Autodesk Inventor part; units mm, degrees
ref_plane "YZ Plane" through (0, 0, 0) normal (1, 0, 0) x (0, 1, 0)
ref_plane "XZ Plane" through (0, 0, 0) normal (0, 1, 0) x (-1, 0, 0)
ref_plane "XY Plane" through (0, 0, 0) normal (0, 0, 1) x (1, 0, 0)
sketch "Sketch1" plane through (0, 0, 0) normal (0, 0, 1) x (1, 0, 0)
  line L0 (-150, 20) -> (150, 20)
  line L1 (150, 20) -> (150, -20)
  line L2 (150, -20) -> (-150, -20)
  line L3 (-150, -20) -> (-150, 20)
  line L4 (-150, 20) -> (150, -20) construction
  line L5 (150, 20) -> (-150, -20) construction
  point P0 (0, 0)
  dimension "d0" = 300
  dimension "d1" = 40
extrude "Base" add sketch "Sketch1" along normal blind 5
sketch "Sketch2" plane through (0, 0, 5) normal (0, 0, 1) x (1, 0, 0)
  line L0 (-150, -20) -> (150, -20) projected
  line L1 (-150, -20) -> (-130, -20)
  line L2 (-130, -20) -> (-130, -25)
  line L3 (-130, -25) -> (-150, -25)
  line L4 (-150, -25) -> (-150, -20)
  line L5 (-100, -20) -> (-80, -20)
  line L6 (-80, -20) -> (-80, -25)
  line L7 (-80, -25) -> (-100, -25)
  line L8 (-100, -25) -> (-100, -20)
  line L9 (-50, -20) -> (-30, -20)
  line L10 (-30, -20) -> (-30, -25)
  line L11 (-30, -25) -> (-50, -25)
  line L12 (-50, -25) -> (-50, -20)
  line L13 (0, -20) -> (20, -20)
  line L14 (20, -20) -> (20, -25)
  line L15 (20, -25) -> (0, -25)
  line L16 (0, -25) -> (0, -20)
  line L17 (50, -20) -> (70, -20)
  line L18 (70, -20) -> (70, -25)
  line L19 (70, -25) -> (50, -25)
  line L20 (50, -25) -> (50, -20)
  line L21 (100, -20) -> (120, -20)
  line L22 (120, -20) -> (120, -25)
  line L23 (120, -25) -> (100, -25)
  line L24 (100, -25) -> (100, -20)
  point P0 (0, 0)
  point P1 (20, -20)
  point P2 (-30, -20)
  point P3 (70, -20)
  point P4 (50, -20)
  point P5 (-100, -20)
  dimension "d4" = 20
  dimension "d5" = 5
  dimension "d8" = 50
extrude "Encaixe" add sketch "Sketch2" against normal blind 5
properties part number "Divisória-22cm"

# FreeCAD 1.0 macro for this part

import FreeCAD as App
import Part
import Sketcher


def add_polygon(sketch, points):
    """Adds a closed chain of lines whose ends are joined by coincident constraints."""
    first, n = sketch.GeometryCount, len(points)
    for a, b in zip(points, points[1:] + points[:1]):
        sketch.addGeometry(Part.LineSegment(App.Vector(*a, 0), App.Vector(*b, 0)), False)
    for i in range(n):
        sketch.addConstraint(Sketcher.Constraint("Coincident", first + i, 2, first + (i + 1) % n, 1))

doc = App.newDocument("Part")
body = doc.addObject("PartDesign::Body", "Body")

sketch1 = body.newObject("Sketcher::SketchObject", "Sketch")
sketch1.AttachmentSupport = (doc.getObject("XY_Plane"), [""])
sketch1.MapMode = "FlatFace"
add_polygon(sketch1, [(150, 20), (-150, 20), (-150, -20), (150, -20)])
sketch1.addConstraint(Sketcher.Constraint("Horizontal", 0))
sketch1.addConstraint(Sketcher.Constraint("Vertical", 1))
sketch1.addConstraint(Sketcher.Constraint("Horizontal", 2))
sketch1.addConstraint(Sketcher.Constraint("Vertical", 3))
sketch1.addConstraint(Sketcher.Constraint("Symmetric", 0, 2, 2, 2, -1, 1))
sketch1.addConstraint(Sketcher.Constraint("DistanceX", 0, 2, 0, 1, 300.0))
sketch1.addConstraint(Sketcher.Constraint("DistanceY", 1, 2, 1, 1, 40.0))
pad1 = body.newObject("PartDesign::Pad", "Pad")
pad1.Profile = sketch1
pad1.Length = 5

sketch2 = body.newObject("Sketcher::SketchObject", "Sketch001")
sketch2.AttachmentSupport = (doc.getObject("XY_Plane"), [""])
sketch2.MapMode = "FlatFace"
sketch2.AttachmentOffset = App.Placement(App.Vector(0, 0, 5), App.Rotation())
add_polygon(sketch2, [(120, -20), (100, -20), (100, -25), (120, -25)])
add_polygon(sketch2, [(70, -20), (50, -20), (50, -25), (70, -25)])
add_polygon(sketch2, [(20, -20), (0, -20), (0, -25), (20, -25)])
add_polygon(sketch2, [(-30, -20), (-50, -20), (-50, -25), (-30, -25)])
add_polygon(sketch2, [(-80, -20), (-100, -20), (-100, -25), (-80, -25)])
add_polygon(sketch2, [(-130, -20), (-150, -20), (-150, -25), (-130, -25)])
sketch2.addConstraint(Sketcher.Constraint("Horizontal", 0))
sketch2.addConstraint(Sketcher.Constraint("Vertical", 1))
sketch2.addConstraint(Sketcher.Constraint("Horizontal", 2))
sketch2.addConstraint(Sketcher.Constraint("Vertical", 3))
sketch2.addConstraint(Sketcher.Constraint("Horizontal", 4))
sketch2.addConstraint(Sketcher.Constraint("Vertical", 5))
sketch2.addConstraint(Sketcher.Constraint("Horizontal", 6))
sketch2.addConstraint(Sketcher.Constraint("Vertical", 7))
sketch2.addConstraint(Sketcher.Constraint("Horizontal", 8))
sketch2.addConstraint(Sketcher.Constraint("Vertical", 9))
sketch2.addConstraint(Sketcher.Constraint("Horizontal", 10))
sketch2.addConstraint(Sketcher.Constraint("Vertical", 11))
sketch2.addConstraint(Sketcher.Constraint("Horizontal", 12))
sketch2.addConstraint(Sketcher.Constraint("Vertical", 13))
sketch2.addConstraint(Sketcher.Constraint("Horizontal", 14))
sketch2.addConstraint(Sketcher.Constraint("Vertical", 15))
sketch2.addConstraint(Sketcher.Constraint("Horizontal", 16))
sketch2.addConstraint(Sketcher.Constraint("Vertical", 17))
sketch2.addConstraint(Sketcher.Constraint("Horizontal", 18))
sketch2.addConstraint(Sketcher.Constraint("Vertical", 19))
sketch2.addConstraint(Sketcher.Constraint("Horizontal", 20))
sketch2.addConstraint(Sketcher.Constraint("Vertical", 21))
sketch2.addConstraint(Sketcher.Constraint("Horizontal", 22))
sketch2.addConstraint(Sketcher.Constraint("Vertical", 23))
sketch2.addConstraint(Sketcher.Constraint("Symmetric", 4, 2, 12, 2, -2))
sketch2.addConstraint(Sketcher.Constraint("Symmetric", 0, 2, 16, 2, -2))
sketch2.addConstraint(Sketcher.Constraint("PointOnObject", 8, 2, -2))
sketch2.addConstraint(Sketcher.Constraint("Horizontal", 3, 2, 4, 2))
sketch2.addConstraint(Sketcher.Constraint("Horizontal", 2, 2, 5, 2))
sketch2.addConstraint(Sketcher.Constraint("Horizontal", 7, 2, 8, 2))
sketch2.addConstraint(Sketcher.Constraint("Horizontal", 6, 2, 9, 2))
sketch2.addConstraint(Sketcher.Constraint("Horizontal", 10, 2, 13, 2))
sketch2.addConstraint(Sketcher.Constraint("Horizontal", 14, 2, 17, 2))
sketch2.addConstraint(Sketcher.Constraint("Horizontal", 19, 2, 20, 2))
sketch2.addConstraint(Sketcher.Constraint("Horizontal", 18, 2, 21, 2))
sketch2.addConstraint(Sketcher.Constraint("Equal", 2, 4))
sketch2.addConstraint(Sketcher.Constraint("Equal", 6, 8))
sketch2.addConstraint(Sketcher.Constraint("Equal", 10, 12))
sketch2.addConstraint(Sketcher.Constraint("Equal", 14, 16))
sketch2.addConstraint(Sketcher.Constraint("Equal", 18, 20))
sketch2.addConstraint(Sketcher.Constraint("DistanceX", 0, 2, 0, 1, 20.0))
sketch2.addConstraint(Sketcher.Constraint("DistanceY", 1, 2, 1, 1, 5.0))
sketch2.addConstraint(Sketcher.Constraint("DistanceY", 0, 2, -1, 1, 20.0))
sketch2.addConstraint(Sketcher.Constraint("DistanceX", -1, 1, 4, 2, 50.0))
sketch2.addConstraint(Sketcher.Constraint("DistanceX", 4, 2, 0, 2, 50.0))
sketch2.addConstraint(Sketcher.Constraint("DistanceX", 20, 2, 16, 2, 50.0))
pad2 = body.newObject("PartDesign::Pad", "Pad001")
pad2.Profile = sketch2
pad2.Length = 5
pad2.Reversed = True

doc.recompute()
